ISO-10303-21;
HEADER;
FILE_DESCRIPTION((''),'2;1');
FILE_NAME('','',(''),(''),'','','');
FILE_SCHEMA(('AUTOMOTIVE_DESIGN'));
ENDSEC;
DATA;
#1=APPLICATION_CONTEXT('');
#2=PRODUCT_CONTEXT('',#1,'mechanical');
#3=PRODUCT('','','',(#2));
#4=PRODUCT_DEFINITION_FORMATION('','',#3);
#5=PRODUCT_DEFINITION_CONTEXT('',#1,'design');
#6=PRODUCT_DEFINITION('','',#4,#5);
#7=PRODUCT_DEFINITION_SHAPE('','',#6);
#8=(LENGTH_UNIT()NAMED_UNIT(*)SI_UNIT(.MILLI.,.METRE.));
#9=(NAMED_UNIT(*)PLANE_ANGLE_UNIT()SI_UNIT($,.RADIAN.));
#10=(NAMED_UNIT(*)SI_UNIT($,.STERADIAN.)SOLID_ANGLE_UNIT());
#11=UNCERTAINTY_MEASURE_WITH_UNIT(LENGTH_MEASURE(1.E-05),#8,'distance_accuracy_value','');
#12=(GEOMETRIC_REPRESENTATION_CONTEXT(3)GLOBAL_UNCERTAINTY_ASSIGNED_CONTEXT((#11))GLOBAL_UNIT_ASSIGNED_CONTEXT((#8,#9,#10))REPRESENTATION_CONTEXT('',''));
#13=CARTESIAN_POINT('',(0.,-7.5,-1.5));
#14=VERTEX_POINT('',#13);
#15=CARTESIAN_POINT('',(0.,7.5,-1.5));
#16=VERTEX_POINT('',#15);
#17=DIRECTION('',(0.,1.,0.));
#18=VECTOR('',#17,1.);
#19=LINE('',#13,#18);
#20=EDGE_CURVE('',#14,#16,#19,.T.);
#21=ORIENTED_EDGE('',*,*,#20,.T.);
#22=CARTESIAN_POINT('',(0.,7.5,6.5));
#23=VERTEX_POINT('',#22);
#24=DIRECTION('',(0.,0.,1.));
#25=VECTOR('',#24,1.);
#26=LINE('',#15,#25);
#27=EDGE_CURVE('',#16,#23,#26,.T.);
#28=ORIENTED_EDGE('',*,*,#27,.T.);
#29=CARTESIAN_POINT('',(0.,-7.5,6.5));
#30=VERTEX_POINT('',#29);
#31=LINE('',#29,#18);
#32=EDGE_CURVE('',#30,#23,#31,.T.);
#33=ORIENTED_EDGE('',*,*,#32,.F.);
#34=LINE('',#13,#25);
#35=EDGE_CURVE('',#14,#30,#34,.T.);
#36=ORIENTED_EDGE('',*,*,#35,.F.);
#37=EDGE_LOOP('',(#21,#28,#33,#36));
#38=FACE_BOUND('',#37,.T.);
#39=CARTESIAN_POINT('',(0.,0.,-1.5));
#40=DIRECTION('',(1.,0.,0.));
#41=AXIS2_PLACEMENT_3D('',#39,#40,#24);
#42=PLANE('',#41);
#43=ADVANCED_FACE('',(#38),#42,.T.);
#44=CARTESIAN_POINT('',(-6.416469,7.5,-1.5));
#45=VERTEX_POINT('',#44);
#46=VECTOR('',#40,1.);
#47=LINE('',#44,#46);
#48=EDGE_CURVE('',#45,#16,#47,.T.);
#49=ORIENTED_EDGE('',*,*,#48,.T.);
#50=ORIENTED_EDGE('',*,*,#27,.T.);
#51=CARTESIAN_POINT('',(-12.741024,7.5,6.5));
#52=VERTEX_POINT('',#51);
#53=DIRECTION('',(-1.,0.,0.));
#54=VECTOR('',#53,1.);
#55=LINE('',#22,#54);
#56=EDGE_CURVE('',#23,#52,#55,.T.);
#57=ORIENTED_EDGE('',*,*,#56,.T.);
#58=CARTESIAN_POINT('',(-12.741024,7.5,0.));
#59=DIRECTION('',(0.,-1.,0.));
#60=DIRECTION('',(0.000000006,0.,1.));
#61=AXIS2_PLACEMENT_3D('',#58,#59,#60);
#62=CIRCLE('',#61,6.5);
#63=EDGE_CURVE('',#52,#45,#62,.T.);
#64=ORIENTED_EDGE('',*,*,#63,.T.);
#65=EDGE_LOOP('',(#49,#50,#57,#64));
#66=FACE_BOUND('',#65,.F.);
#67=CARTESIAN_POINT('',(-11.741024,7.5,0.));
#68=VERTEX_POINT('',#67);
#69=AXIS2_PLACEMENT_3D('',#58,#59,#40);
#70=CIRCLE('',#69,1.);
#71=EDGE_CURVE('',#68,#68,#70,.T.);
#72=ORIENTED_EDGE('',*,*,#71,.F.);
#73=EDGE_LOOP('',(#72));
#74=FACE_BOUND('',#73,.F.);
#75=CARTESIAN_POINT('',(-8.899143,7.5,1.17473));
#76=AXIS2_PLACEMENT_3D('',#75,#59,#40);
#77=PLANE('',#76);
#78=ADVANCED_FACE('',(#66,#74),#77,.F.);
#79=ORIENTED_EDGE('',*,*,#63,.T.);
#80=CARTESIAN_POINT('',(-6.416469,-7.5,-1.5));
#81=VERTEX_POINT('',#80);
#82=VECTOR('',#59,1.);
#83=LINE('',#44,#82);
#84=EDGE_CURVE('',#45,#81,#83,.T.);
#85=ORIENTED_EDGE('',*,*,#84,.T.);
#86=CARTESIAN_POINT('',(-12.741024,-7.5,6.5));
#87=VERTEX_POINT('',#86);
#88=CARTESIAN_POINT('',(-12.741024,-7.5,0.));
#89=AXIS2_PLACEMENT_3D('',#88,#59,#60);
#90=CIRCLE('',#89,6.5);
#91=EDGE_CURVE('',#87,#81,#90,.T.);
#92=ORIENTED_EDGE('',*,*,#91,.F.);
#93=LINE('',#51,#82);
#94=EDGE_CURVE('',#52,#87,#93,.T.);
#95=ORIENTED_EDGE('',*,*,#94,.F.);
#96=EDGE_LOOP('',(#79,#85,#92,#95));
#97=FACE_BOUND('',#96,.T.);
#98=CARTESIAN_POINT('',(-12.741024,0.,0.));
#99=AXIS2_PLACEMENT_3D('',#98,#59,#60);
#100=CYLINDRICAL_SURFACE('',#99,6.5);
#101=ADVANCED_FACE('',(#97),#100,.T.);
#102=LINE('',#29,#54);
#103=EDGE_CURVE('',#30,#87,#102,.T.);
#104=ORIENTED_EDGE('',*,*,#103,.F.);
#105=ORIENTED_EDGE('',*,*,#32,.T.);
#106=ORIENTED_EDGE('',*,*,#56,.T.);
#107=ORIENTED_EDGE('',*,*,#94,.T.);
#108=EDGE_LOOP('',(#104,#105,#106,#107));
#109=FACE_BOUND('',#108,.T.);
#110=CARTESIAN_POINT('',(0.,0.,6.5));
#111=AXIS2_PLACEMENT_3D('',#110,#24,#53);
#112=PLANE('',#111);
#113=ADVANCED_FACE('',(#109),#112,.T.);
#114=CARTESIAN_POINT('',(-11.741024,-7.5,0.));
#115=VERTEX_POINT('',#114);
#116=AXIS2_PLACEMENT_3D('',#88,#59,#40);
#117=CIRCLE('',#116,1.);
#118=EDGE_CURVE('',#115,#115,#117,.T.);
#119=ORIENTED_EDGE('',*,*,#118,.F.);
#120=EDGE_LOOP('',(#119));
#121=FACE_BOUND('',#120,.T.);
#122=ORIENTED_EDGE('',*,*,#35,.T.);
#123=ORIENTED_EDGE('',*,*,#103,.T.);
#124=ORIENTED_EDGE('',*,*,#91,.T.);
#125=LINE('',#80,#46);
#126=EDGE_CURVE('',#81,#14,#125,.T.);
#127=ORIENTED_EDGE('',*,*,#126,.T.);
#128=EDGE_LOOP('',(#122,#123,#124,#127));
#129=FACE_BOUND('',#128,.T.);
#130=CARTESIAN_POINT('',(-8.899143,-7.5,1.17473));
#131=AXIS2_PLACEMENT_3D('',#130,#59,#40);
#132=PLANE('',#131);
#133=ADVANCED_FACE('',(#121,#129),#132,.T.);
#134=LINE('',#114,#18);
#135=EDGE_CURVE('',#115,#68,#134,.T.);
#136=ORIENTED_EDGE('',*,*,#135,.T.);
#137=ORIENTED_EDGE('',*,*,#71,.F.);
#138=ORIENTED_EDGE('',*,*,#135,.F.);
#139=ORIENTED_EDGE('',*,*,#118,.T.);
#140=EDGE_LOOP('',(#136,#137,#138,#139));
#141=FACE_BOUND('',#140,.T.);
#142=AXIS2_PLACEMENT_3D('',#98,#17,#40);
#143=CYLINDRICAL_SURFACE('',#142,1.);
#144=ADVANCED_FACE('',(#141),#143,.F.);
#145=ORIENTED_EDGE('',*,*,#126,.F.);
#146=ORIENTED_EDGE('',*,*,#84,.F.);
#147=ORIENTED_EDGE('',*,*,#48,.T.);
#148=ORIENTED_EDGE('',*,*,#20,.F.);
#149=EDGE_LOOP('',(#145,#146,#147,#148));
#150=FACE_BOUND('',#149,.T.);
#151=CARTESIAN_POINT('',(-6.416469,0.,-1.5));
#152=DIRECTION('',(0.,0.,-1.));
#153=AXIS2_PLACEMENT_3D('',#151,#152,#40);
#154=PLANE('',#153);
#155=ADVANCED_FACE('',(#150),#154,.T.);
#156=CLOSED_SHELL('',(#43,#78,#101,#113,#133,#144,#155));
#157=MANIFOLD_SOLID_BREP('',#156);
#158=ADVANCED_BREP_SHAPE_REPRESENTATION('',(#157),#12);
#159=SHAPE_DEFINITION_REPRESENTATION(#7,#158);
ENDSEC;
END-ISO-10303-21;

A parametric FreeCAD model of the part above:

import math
import FreeCAD as App
import Part
import Sketcher
from FreeCAD import Vector
Q = App.Units.Quantity

doc = App.newDocument("Part")
body = doc.addObject("PartDesign::Body", "Body")

# Sketch on XZ plane
sketch1 = body.newObject("Sketcher::SketchObject", "Sketch")
sketch1.AttachmentSupport = (doc.getObject("XZ_Plane"), [""])
sketch1.MapMode = "FlatFace"
sketch1.addGeometry(Part.LineSegment(Vector(0, 6.5, 0), Vector(-12.741024, 6.5, 0)), False)
sketch1.addGeometry(Part.ArcOfCircle(Part.Circle(Vector(-12.741024, 0, 0), Vector(0, 0, 1), 6.5), math.radians(90), math.radians(346.657634)), False)
sketch1.addGeometry(Part.LineSegment(Vector(-6.416469, -1.5, 0), Vector(0, -1.5, 0)), False)
sketch1.addGeometry(Part.LineSegment(Vector(0, -1.5, 0), Vector(0, 6.5, 0)), False)
sketch1.addGeometry(Part.Circle(Vector(-12.741024, 0, 0), Vector(0, 0, 1), 1), False)
sketch1.addConstraint(Sketcher.Constraint("Tangent", 0, 2, 1, 1))
sketch1.addConstraint(Sketcher.Constraint("Coincident", 1, 2, 2, 1))
sketch1.addConstraint(Sketcher.Constraint("Coincident", 2, 2, 3, 1))
sketch1.addConstraint(Sketcher.Constraint("Coincident", 3, 2, 0, 1))
sketch1.addConstraint(Sketcher.Constraint("Horizontal", 0))
sketch1.addConstraint(Sketcher.Constraint("Horizontal", 2))
sketch1.addConstraint(Sketcher.Constraint("Vertical", 3))
sketch1.addConstraint(Sketcher.Constraint("Coincident", 4, 3, 1, 3))
sketch1.addConstraint(Sketcher.Constraint("PointOnObject", 1, 3, -1))
sketch1.addConstraint(Sketcher.Constraint("PointOnObject", 2, 2, -2))
sketch1.addConstraint(Sketcher.Constraint("Diameter", 4, Q("2 mm")))
sketch1.addConstraint(Sketcher.Constraint("Radius", 1, Q("6.5 mm")))
sketch1.addConstraint(Sketcher.Constraint("DistanceY", 3, 1, 3, 2, Q("8 mm")))
sketch1.addConstraint(Sketcher.Constraint("DistanceX", 2, 1, 2, 2, Q("6.416469 mm")))
pad1 = body.newObject("PartDesign::Pad", "Pad")
pad1.Profile = sketch1
pad1.Length = 15
pad1.Midplane = True

doc.recompute()
